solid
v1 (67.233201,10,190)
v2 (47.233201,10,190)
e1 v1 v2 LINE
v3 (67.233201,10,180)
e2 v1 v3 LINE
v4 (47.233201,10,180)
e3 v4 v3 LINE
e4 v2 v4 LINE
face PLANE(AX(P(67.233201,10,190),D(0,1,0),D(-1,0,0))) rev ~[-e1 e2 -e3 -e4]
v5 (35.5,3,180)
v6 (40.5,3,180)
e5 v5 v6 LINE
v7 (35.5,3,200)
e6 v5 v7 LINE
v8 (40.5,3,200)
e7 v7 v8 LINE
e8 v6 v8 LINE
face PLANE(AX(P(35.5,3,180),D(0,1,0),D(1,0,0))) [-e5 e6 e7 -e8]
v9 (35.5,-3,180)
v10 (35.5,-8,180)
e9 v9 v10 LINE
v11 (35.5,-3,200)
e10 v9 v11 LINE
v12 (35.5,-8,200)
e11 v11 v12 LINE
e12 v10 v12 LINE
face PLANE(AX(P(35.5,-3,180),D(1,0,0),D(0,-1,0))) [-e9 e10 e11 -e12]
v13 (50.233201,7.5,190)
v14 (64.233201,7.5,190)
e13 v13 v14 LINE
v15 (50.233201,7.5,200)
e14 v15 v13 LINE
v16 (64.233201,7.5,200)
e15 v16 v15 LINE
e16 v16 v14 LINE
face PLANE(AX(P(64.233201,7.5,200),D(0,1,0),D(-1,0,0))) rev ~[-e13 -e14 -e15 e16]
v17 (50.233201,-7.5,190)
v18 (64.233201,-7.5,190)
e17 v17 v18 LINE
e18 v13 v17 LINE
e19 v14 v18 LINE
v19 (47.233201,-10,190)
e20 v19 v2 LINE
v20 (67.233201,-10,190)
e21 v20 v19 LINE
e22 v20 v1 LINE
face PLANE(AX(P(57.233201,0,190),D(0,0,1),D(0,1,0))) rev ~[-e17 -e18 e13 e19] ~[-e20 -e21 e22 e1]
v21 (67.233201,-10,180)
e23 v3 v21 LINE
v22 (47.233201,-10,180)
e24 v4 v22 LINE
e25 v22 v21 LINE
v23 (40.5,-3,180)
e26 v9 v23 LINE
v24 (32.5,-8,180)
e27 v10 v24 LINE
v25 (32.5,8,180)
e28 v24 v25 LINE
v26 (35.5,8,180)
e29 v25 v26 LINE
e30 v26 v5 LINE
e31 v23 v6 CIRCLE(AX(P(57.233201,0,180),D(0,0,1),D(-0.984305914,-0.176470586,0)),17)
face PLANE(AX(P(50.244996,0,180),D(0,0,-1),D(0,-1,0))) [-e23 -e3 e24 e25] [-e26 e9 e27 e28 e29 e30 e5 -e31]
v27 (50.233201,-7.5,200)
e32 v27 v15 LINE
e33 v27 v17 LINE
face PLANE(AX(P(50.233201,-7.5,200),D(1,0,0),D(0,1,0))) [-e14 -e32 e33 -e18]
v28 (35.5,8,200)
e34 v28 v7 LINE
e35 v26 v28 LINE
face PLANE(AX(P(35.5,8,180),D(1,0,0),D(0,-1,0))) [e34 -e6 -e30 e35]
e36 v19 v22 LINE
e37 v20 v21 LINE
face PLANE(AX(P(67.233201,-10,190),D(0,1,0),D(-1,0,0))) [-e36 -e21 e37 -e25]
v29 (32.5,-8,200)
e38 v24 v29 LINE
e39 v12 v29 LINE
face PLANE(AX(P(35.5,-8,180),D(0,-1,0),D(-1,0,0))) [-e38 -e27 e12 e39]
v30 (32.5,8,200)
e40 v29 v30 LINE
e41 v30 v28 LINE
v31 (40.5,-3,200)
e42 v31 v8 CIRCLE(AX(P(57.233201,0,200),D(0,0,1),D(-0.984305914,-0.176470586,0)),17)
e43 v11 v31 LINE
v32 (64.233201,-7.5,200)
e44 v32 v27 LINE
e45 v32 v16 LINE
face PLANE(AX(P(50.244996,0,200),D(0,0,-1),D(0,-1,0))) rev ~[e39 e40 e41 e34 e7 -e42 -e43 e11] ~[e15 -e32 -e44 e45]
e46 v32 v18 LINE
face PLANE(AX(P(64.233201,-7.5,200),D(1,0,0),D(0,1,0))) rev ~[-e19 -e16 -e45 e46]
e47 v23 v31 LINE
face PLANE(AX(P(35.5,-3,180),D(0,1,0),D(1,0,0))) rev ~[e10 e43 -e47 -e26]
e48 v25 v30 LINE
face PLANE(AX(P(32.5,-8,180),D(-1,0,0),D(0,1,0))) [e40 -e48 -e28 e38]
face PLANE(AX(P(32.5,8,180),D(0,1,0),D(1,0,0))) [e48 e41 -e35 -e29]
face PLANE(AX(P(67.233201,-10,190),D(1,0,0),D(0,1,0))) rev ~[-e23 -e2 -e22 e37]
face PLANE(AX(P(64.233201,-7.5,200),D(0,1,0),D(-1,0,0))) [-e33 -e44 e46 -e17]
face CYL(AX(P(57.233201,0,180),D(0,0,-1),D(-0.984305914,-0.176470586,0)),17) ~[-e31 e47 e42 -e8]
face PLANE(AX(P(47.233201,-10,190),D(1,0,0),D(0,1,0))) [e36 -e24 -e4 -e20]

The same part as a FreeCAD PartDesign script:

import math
import FreeCAD as App
import Part
import Sketcher
from FreeCAD import Vector


def add_polygon(sketch, points):
    """Adds a closed chain of lines whose ends are joined by coincident constraints."""
    first, n = sketch.GeometryCount, len(points)
    for a, b in zip(points, points[1:] + points[:1]):
        sketch.addGeometry(Part.LineSegment(App.Vector(*a, 0), App.Vector(*b, 0)), False)
    for i in range(n):
        sketch.addConstraint(Sketcher.Constraint("Coincident", first + i, 2, first + (i + 1) % n, 1))

doc = App.newDocument("Part")
params = doc.addObject("Spreadsheet::Sheet", "Params")
for row, (alias, value) in enumerate([
    ("sketch1_radius", "17 mm"),
    ("sketch1_width", "5 mm"),
    ("sketch1_width2", "16 mm"),
    ("sketch1_height", "3 mm"),
    ("pad1_length", "20 mm"),
    ("sketch2_width", "15 mm"),
    ("sketch2_height", "14 mm"),
    ("sketch3_width", "20 mm"),
], start=1):
    params.set(f"A{row}", alias)
    params.set(f"B{row}", "=" + value)
    params.setAlias(f"B{row}", alias)

body = doc.addObject("PartDesign::Body", "Body")

# Sketch on XY plane
sketch1 = body.newObject("Sketcher::SketchObject", "Sketch")
sketch1.AttachmentSupport = (doc.getObject("XY_Plane"), [""])
sketch1.MapMode = "FlatFace"
sketch1.addGeometry([
    Part.LineSegment(Vector(-8, -3, 0), Vector(-3, -3, 0)),  # 0
    Part.LineSegment(Vector(-3, -3, 0), Vector(-3, -8, 0)),  # 1
    Part.ArcOfCircle(Part.Circle(Vector(0, -24.7, 0), Vector(0, 0, 1), 17), math.radians(100), math.radians(440)),  # 2
    Part.LineSegment(Vector(3, -8, 0), Vector(3, -3, 0)),  # 3
    Part.LineSegment(Vector(3, -3, 0), Vector(8, -3, 0)),  # 4
    Part.LineSegment(Vector(8, -3, 0), Vector(8, 0, 0)),  # 5
    Part.LineSegment(Vector(8, 0, 0), Vector(-8, 0, 0)),  # 6
    Part.LineSegment(Vector(-8, 0, 0), Vector(-8, -3, 0)),  # 7
], False)
sketch1.addConstraint([
    Sketcher.Constraint("Coincident", 0, 2, 1, 1),
    Sketcher.Constraint("Coincident", 1, 2, 2, 1),
    Sketcher.Constraint("Coincident", 2, 2, 3, 1),
    Sketcher.Constraint("Coincident", 3, 2, 4, 1),
    Sketcher.Constraint("Coincident", 4, 2, 5, 1),
    Sketcher.Constraint("Coincident", 5, 2, 6, 1),
    Sketcher.Constraint("Coincident", 6, 2, 7, 1),
    Sketcher.Constraint("Coincident", 7, 2, 0, 1),
    Sketcher.Constraint("Horizontal", 0),
    Sketcher.Constraint("Vertical", 1),
    Sketcher.Constraint("Vertical", 3),
    Sketcher.Constraint("Horizontal", 4),
    Sketcher.Constraint("Vertical", 5),
    Sketcher.Constraint("Horizontal", 6),
    Sketcher.Constraint("Vertical", 7),
    Sketcher.Constraint("Symmetric", 5, 2, 6, 2, -1, 1),
    Sketcher.Constraint("Symmetric", 1, 2, 2, 2, -2),
    Sketcher.Constraint("Horizontal", 0, 2, 3, 2),
    Sketcher.Constraint("Equal", 4, 1),
    Sketcher.Constraint("Radius", 2, 17.0),
    Sketcher.Constraint("DistanceX", 0, 1, 0, 2, 5.0),
    Sketcher.Constraint("DistanceX", 6, 2, 6, 1, 16.0),
    Sketcher.Constraint("DistanceY", 5, 1, 5, 2, 3.0),
])
sketch1.setExpression("Constraints[19]", "Params.sketch1_radius")
sketch1.setExpression("Constraints[20]", "Params.sketch1_width")
sketch1.setExpression("Constraints[21]", "Params.sketch1_width2")
sketch1.setExpression("Constraints[22]", "Params.sketch1_height")
pad1 = body.newObject("PartDesign::Pad", "Pad")
pad1.Profile = sketch1
pad1.setExpression("Length", "Params.pad1_length")

# Sketch on XY plane
sketch2 = body.newObject("Sketcher::SketchObject", "Sketch001")
sketch2.AttachmentSupport = (doc.getObject("XY_Plane"), [""])
sketch2.MapMode = "FlatFace"
sketch2.AttachmentOffset = App.Placement(Vector(0, 0, 20), App.Rotation())
add_polygon(sketch2, [(-8, -18), (-8, -32), (8, -32), (8, -18)])  # lines 0-3
sketch2.addConstraint([
    Sketcher.Constraint("Vertical", 0),
    Sketcher.Constraint("Horizontal", 1),
    Sketcher.Constraint("Vertical", 2),
    Sketcher.Constraint("Horizontal", 3),
    Sketcher.Constraint("DistanceX", 1, 1, 1, 2, 15.0),
    Sketcher.Constraint("DistanceY", 0, 2, 0, 1, 14.0),
    Sketcher.Constraint("DistanceX", 0, 2, -1, 1, 7.5),
    Sketcher.Constraint("DistanceY", 0, 2, -1, 1, 31.733201),
])
sketch2.setExpression("Constraints[8]", "Params.sketch2_width")
sketch2.setExpression("Constraints[9]", "Params.sketch2_height")
pocket1 = body.newObject("PartDesign::Pocket", "Pocket")
pocket1.Profile = sketch2
pocket1.Type = "ThroughAll"

# Sketch on XY plane
sketch3 = body.newObject("Sketcher::SketchObject", "Sketch002")
sketch3.AttachmentSupport = (doc.getObject("XY_Plane"), [""])
sketch3.MapMode = "FlatFace"
sketch3.AttachmentOffset = App.Placement(Vector(0, 0, 10), App.Rotation())
add_polygon(sketch3, [(-10, -15), (-10, -35), (10, -35), (10, -15)])  # lines 0-3
sketch3.addConstraint([
    Sketcher.Constraint("Vertical", 0),
    Sketcher.Constraint("Horizontal", 1),
    Sketcher.Constraint("Vertical", 2),
    Sketcher.Constraint("Horizontal", 3),
    Sketcher.Constraint("Equal", 3, 0),
    Sketcher.Constraint("DistanceX", 1, 1, 1, 2, 20.0),
    Sketcher.Constraint("DistanceX", 0, 2, -1, 1, 10.0),
    Sketcher.Constraint("DistanceY", 0, 2, -1, 1, 34.733201),
])
sketch3.setExpression("Constraints[9]", "Params.sketch3_width")
pocket2 = body.newObject("PartDesign::Pocket", "Pocket001")
pocket2.Profile = sketch3
pocket2.Type = "ThroughAll"
body2 = doc.addObject("PartDesign::Body", "Body001")
doc.recompute()

body.Placement = App.Placement(Vector(32.5, 0, 180), App.Rotation(Vector(0, 0, 1), 90))
boolean = body2.newObject("PartDesign::Boolean", "Boolean")
boolean.Type = "Fuse"
boolean.addObjects([body])

doc.recompute()
